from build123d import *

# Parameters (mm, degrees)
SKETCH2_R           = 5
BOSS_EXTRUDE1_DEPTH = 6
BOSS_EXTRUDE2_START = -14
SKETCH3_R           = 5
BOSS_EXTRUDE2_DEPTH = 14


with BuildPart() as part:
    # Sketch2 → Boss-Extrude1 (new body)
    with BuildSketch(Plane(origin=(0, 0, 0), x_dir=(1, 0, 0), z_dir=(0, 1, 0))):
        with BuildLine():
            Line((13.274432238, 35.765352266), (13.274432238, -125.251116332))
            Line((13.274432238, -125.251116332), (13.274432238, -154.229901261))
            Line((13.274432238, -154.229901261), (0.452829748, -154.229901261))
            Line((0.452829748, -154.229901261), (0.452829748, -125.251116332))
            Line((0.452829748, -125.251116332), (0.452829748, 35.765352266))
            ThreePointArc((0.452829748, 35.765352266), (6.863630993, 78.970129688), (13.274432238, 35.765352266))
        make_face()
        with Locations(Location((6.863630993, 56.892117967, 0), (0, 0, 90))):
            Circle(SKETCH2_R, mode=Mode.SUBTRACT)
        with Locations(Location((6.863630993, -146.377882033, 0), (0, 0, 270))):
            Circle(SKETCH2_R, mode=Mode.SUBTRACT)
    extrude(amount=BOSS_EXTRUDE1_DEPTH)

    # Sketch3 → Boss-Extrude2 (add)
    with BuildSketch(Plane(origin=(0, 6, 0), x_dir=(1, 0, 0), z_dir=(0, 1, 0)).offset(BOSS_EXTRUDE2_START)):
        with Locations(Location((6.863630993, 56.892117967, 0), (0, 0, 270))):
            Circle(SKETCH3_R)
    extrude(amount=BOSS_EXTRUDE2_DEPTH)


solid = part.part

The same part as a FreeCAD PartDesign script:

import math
import FreeCAD as App
import Part
import Sketcher
from FreeCAD import Vector

doc = App.newDocument("Part")
params = doc.addObject("Spreadsheet::Sheet", "Params")
for row, (alias, value) in enumerate([
    ("sketch1_diameter", "10 mm"),
    ("pad1_length", "6 mm"),
    ("sketch2_diameter", "10 mm"),
    ("pad2_length", "14 mm"),
], start=1):
    params.set(f"A{row}", alias)
    params.set(f"B{row}", "=" + value)
    params.setAlias(f"B{row}", alias)

body = doc.addObject("PartDesign::Body", "Body")

# Sketch on XZ plane
sketch1 = body.newObject("Sketcher::SketchObject", "Sketch")
sketch1.AttachmentSupport = (doc.getObject("XZ_Plane"), [""])
sketch1.MapMode = "FlatFace"
sketch1.addGeometry([
    Part.LineSegment(Vector(13, 154, 0), Vector(13, -36, 0)),  # 0
    Part.ArcOfCircle(Part.Circle(Vector(7, -57, 0), Vector(0, 0, 1), 22), math.radians(107), math.radians(433)),  # 1
    Part.LineSegment(Vector(0, -36, 0), Vector(0, 154, 0)),  # 2
    Part.LineSegment(Vector(0, 154, 0), Vector(13, 154, 0)),  # 3
    Part.Circle(Vector(7, 146, 0), Vector(0, 0, 1), 5),  # 4
    Part.Circle(Vector(7, -57, 0), Vector(0, 0, 1), 5),  # 5
], False)
sketch1.addConstraint([
    Sketcher.Constraint("Coincident", 0, 2, 1, 2),
    Sketcher.Constraint("Coincident", 1, 1, 2, 1),
    Sketcher.Constraint("Coincident", 2, 2, 3, 1),
    Sketcher.Constraint("Coincident", 3, 2, 0, 1),
    Sketcher.Constraint("Vertical", 0),
    Sketcher.Constraint("Vertical", 2),
    Sketcher.Constraint("Horizontal", 3),
    Sketcher.Constraint("Coincident", 5, 3, 1, 3),
    Sketcher.Constraint("Equal", 4, 5),
    Sketcher.Constraint("Horizontal", 0, 2, 1, 1),
    Sketcher.Constraint("Vertical", 1, 3, 4, 3),
    Sketcher.Constraint("Diameter", 4, 10.0),
    Sketcher.Constraint("Radius", 1, 22.078012),
    Sketcher.Constraint("DistanceY", 1, 3, 4, 3, 203.27),
    Sketcher.Constraint("DistanceY", -1, 1, 2, 2, 154.229901),
    Sketcher.Constraint("DistanceX", 1, 3, 0, 2, 6.410801),
    Sketcher.Constraint("DistanceY", 0, 2, 0, 1, 189.995254),
    Sketcher.Constraint("DistanceX", -1, 1, 1, 3, 6.863631),
])
sketch1.setExpression("Constraints[11]", "Params.sketch1_diameter")
pad1 = body.newObject("PartDesign::Pad", "Pad")
pad1.Profile = sketch1
pad1.setExpression("Length", "Params.pad1_length")
pad1.Reversed = True

# Sketch on XZ plane
sketch2 = body.newObject("Sketcher::SketchObject", "Sketch001")
sketch2.AttachmentSupport = (doc.getObject("XZ_Plane"), [""])
sketch2.MapMode = "FlatFace"
sketch2.AttachmentOffset = App.Placement(Vector(0, 0, 8), App.Rotation())
sketch2.addGeometry(Part.Circle(Vector(7, -57, 0), Vector(0, 0, 1), 5), False)
sketch2.addConstraint([
    Sketcher.Constraint("Diameter", 0, 10.0),
    Sketcher.Constraint("DistanceX", -1, 1, 0, 3, 6.863631),
    Sketcher.Constraint("DistanceY", 0, 3, -1, 1, 56.892118),
])
sketch2.setExpression("Constraints[0]", "Params.sketch2_diameter")
pad2 = body.newObject("PartDesign::Pad", "Pad001")
pad2.Profile = sketch2
pad2.setExpression("Length", "Params.pad2_length")
pad2.Reversed = True

doc.recompute()
